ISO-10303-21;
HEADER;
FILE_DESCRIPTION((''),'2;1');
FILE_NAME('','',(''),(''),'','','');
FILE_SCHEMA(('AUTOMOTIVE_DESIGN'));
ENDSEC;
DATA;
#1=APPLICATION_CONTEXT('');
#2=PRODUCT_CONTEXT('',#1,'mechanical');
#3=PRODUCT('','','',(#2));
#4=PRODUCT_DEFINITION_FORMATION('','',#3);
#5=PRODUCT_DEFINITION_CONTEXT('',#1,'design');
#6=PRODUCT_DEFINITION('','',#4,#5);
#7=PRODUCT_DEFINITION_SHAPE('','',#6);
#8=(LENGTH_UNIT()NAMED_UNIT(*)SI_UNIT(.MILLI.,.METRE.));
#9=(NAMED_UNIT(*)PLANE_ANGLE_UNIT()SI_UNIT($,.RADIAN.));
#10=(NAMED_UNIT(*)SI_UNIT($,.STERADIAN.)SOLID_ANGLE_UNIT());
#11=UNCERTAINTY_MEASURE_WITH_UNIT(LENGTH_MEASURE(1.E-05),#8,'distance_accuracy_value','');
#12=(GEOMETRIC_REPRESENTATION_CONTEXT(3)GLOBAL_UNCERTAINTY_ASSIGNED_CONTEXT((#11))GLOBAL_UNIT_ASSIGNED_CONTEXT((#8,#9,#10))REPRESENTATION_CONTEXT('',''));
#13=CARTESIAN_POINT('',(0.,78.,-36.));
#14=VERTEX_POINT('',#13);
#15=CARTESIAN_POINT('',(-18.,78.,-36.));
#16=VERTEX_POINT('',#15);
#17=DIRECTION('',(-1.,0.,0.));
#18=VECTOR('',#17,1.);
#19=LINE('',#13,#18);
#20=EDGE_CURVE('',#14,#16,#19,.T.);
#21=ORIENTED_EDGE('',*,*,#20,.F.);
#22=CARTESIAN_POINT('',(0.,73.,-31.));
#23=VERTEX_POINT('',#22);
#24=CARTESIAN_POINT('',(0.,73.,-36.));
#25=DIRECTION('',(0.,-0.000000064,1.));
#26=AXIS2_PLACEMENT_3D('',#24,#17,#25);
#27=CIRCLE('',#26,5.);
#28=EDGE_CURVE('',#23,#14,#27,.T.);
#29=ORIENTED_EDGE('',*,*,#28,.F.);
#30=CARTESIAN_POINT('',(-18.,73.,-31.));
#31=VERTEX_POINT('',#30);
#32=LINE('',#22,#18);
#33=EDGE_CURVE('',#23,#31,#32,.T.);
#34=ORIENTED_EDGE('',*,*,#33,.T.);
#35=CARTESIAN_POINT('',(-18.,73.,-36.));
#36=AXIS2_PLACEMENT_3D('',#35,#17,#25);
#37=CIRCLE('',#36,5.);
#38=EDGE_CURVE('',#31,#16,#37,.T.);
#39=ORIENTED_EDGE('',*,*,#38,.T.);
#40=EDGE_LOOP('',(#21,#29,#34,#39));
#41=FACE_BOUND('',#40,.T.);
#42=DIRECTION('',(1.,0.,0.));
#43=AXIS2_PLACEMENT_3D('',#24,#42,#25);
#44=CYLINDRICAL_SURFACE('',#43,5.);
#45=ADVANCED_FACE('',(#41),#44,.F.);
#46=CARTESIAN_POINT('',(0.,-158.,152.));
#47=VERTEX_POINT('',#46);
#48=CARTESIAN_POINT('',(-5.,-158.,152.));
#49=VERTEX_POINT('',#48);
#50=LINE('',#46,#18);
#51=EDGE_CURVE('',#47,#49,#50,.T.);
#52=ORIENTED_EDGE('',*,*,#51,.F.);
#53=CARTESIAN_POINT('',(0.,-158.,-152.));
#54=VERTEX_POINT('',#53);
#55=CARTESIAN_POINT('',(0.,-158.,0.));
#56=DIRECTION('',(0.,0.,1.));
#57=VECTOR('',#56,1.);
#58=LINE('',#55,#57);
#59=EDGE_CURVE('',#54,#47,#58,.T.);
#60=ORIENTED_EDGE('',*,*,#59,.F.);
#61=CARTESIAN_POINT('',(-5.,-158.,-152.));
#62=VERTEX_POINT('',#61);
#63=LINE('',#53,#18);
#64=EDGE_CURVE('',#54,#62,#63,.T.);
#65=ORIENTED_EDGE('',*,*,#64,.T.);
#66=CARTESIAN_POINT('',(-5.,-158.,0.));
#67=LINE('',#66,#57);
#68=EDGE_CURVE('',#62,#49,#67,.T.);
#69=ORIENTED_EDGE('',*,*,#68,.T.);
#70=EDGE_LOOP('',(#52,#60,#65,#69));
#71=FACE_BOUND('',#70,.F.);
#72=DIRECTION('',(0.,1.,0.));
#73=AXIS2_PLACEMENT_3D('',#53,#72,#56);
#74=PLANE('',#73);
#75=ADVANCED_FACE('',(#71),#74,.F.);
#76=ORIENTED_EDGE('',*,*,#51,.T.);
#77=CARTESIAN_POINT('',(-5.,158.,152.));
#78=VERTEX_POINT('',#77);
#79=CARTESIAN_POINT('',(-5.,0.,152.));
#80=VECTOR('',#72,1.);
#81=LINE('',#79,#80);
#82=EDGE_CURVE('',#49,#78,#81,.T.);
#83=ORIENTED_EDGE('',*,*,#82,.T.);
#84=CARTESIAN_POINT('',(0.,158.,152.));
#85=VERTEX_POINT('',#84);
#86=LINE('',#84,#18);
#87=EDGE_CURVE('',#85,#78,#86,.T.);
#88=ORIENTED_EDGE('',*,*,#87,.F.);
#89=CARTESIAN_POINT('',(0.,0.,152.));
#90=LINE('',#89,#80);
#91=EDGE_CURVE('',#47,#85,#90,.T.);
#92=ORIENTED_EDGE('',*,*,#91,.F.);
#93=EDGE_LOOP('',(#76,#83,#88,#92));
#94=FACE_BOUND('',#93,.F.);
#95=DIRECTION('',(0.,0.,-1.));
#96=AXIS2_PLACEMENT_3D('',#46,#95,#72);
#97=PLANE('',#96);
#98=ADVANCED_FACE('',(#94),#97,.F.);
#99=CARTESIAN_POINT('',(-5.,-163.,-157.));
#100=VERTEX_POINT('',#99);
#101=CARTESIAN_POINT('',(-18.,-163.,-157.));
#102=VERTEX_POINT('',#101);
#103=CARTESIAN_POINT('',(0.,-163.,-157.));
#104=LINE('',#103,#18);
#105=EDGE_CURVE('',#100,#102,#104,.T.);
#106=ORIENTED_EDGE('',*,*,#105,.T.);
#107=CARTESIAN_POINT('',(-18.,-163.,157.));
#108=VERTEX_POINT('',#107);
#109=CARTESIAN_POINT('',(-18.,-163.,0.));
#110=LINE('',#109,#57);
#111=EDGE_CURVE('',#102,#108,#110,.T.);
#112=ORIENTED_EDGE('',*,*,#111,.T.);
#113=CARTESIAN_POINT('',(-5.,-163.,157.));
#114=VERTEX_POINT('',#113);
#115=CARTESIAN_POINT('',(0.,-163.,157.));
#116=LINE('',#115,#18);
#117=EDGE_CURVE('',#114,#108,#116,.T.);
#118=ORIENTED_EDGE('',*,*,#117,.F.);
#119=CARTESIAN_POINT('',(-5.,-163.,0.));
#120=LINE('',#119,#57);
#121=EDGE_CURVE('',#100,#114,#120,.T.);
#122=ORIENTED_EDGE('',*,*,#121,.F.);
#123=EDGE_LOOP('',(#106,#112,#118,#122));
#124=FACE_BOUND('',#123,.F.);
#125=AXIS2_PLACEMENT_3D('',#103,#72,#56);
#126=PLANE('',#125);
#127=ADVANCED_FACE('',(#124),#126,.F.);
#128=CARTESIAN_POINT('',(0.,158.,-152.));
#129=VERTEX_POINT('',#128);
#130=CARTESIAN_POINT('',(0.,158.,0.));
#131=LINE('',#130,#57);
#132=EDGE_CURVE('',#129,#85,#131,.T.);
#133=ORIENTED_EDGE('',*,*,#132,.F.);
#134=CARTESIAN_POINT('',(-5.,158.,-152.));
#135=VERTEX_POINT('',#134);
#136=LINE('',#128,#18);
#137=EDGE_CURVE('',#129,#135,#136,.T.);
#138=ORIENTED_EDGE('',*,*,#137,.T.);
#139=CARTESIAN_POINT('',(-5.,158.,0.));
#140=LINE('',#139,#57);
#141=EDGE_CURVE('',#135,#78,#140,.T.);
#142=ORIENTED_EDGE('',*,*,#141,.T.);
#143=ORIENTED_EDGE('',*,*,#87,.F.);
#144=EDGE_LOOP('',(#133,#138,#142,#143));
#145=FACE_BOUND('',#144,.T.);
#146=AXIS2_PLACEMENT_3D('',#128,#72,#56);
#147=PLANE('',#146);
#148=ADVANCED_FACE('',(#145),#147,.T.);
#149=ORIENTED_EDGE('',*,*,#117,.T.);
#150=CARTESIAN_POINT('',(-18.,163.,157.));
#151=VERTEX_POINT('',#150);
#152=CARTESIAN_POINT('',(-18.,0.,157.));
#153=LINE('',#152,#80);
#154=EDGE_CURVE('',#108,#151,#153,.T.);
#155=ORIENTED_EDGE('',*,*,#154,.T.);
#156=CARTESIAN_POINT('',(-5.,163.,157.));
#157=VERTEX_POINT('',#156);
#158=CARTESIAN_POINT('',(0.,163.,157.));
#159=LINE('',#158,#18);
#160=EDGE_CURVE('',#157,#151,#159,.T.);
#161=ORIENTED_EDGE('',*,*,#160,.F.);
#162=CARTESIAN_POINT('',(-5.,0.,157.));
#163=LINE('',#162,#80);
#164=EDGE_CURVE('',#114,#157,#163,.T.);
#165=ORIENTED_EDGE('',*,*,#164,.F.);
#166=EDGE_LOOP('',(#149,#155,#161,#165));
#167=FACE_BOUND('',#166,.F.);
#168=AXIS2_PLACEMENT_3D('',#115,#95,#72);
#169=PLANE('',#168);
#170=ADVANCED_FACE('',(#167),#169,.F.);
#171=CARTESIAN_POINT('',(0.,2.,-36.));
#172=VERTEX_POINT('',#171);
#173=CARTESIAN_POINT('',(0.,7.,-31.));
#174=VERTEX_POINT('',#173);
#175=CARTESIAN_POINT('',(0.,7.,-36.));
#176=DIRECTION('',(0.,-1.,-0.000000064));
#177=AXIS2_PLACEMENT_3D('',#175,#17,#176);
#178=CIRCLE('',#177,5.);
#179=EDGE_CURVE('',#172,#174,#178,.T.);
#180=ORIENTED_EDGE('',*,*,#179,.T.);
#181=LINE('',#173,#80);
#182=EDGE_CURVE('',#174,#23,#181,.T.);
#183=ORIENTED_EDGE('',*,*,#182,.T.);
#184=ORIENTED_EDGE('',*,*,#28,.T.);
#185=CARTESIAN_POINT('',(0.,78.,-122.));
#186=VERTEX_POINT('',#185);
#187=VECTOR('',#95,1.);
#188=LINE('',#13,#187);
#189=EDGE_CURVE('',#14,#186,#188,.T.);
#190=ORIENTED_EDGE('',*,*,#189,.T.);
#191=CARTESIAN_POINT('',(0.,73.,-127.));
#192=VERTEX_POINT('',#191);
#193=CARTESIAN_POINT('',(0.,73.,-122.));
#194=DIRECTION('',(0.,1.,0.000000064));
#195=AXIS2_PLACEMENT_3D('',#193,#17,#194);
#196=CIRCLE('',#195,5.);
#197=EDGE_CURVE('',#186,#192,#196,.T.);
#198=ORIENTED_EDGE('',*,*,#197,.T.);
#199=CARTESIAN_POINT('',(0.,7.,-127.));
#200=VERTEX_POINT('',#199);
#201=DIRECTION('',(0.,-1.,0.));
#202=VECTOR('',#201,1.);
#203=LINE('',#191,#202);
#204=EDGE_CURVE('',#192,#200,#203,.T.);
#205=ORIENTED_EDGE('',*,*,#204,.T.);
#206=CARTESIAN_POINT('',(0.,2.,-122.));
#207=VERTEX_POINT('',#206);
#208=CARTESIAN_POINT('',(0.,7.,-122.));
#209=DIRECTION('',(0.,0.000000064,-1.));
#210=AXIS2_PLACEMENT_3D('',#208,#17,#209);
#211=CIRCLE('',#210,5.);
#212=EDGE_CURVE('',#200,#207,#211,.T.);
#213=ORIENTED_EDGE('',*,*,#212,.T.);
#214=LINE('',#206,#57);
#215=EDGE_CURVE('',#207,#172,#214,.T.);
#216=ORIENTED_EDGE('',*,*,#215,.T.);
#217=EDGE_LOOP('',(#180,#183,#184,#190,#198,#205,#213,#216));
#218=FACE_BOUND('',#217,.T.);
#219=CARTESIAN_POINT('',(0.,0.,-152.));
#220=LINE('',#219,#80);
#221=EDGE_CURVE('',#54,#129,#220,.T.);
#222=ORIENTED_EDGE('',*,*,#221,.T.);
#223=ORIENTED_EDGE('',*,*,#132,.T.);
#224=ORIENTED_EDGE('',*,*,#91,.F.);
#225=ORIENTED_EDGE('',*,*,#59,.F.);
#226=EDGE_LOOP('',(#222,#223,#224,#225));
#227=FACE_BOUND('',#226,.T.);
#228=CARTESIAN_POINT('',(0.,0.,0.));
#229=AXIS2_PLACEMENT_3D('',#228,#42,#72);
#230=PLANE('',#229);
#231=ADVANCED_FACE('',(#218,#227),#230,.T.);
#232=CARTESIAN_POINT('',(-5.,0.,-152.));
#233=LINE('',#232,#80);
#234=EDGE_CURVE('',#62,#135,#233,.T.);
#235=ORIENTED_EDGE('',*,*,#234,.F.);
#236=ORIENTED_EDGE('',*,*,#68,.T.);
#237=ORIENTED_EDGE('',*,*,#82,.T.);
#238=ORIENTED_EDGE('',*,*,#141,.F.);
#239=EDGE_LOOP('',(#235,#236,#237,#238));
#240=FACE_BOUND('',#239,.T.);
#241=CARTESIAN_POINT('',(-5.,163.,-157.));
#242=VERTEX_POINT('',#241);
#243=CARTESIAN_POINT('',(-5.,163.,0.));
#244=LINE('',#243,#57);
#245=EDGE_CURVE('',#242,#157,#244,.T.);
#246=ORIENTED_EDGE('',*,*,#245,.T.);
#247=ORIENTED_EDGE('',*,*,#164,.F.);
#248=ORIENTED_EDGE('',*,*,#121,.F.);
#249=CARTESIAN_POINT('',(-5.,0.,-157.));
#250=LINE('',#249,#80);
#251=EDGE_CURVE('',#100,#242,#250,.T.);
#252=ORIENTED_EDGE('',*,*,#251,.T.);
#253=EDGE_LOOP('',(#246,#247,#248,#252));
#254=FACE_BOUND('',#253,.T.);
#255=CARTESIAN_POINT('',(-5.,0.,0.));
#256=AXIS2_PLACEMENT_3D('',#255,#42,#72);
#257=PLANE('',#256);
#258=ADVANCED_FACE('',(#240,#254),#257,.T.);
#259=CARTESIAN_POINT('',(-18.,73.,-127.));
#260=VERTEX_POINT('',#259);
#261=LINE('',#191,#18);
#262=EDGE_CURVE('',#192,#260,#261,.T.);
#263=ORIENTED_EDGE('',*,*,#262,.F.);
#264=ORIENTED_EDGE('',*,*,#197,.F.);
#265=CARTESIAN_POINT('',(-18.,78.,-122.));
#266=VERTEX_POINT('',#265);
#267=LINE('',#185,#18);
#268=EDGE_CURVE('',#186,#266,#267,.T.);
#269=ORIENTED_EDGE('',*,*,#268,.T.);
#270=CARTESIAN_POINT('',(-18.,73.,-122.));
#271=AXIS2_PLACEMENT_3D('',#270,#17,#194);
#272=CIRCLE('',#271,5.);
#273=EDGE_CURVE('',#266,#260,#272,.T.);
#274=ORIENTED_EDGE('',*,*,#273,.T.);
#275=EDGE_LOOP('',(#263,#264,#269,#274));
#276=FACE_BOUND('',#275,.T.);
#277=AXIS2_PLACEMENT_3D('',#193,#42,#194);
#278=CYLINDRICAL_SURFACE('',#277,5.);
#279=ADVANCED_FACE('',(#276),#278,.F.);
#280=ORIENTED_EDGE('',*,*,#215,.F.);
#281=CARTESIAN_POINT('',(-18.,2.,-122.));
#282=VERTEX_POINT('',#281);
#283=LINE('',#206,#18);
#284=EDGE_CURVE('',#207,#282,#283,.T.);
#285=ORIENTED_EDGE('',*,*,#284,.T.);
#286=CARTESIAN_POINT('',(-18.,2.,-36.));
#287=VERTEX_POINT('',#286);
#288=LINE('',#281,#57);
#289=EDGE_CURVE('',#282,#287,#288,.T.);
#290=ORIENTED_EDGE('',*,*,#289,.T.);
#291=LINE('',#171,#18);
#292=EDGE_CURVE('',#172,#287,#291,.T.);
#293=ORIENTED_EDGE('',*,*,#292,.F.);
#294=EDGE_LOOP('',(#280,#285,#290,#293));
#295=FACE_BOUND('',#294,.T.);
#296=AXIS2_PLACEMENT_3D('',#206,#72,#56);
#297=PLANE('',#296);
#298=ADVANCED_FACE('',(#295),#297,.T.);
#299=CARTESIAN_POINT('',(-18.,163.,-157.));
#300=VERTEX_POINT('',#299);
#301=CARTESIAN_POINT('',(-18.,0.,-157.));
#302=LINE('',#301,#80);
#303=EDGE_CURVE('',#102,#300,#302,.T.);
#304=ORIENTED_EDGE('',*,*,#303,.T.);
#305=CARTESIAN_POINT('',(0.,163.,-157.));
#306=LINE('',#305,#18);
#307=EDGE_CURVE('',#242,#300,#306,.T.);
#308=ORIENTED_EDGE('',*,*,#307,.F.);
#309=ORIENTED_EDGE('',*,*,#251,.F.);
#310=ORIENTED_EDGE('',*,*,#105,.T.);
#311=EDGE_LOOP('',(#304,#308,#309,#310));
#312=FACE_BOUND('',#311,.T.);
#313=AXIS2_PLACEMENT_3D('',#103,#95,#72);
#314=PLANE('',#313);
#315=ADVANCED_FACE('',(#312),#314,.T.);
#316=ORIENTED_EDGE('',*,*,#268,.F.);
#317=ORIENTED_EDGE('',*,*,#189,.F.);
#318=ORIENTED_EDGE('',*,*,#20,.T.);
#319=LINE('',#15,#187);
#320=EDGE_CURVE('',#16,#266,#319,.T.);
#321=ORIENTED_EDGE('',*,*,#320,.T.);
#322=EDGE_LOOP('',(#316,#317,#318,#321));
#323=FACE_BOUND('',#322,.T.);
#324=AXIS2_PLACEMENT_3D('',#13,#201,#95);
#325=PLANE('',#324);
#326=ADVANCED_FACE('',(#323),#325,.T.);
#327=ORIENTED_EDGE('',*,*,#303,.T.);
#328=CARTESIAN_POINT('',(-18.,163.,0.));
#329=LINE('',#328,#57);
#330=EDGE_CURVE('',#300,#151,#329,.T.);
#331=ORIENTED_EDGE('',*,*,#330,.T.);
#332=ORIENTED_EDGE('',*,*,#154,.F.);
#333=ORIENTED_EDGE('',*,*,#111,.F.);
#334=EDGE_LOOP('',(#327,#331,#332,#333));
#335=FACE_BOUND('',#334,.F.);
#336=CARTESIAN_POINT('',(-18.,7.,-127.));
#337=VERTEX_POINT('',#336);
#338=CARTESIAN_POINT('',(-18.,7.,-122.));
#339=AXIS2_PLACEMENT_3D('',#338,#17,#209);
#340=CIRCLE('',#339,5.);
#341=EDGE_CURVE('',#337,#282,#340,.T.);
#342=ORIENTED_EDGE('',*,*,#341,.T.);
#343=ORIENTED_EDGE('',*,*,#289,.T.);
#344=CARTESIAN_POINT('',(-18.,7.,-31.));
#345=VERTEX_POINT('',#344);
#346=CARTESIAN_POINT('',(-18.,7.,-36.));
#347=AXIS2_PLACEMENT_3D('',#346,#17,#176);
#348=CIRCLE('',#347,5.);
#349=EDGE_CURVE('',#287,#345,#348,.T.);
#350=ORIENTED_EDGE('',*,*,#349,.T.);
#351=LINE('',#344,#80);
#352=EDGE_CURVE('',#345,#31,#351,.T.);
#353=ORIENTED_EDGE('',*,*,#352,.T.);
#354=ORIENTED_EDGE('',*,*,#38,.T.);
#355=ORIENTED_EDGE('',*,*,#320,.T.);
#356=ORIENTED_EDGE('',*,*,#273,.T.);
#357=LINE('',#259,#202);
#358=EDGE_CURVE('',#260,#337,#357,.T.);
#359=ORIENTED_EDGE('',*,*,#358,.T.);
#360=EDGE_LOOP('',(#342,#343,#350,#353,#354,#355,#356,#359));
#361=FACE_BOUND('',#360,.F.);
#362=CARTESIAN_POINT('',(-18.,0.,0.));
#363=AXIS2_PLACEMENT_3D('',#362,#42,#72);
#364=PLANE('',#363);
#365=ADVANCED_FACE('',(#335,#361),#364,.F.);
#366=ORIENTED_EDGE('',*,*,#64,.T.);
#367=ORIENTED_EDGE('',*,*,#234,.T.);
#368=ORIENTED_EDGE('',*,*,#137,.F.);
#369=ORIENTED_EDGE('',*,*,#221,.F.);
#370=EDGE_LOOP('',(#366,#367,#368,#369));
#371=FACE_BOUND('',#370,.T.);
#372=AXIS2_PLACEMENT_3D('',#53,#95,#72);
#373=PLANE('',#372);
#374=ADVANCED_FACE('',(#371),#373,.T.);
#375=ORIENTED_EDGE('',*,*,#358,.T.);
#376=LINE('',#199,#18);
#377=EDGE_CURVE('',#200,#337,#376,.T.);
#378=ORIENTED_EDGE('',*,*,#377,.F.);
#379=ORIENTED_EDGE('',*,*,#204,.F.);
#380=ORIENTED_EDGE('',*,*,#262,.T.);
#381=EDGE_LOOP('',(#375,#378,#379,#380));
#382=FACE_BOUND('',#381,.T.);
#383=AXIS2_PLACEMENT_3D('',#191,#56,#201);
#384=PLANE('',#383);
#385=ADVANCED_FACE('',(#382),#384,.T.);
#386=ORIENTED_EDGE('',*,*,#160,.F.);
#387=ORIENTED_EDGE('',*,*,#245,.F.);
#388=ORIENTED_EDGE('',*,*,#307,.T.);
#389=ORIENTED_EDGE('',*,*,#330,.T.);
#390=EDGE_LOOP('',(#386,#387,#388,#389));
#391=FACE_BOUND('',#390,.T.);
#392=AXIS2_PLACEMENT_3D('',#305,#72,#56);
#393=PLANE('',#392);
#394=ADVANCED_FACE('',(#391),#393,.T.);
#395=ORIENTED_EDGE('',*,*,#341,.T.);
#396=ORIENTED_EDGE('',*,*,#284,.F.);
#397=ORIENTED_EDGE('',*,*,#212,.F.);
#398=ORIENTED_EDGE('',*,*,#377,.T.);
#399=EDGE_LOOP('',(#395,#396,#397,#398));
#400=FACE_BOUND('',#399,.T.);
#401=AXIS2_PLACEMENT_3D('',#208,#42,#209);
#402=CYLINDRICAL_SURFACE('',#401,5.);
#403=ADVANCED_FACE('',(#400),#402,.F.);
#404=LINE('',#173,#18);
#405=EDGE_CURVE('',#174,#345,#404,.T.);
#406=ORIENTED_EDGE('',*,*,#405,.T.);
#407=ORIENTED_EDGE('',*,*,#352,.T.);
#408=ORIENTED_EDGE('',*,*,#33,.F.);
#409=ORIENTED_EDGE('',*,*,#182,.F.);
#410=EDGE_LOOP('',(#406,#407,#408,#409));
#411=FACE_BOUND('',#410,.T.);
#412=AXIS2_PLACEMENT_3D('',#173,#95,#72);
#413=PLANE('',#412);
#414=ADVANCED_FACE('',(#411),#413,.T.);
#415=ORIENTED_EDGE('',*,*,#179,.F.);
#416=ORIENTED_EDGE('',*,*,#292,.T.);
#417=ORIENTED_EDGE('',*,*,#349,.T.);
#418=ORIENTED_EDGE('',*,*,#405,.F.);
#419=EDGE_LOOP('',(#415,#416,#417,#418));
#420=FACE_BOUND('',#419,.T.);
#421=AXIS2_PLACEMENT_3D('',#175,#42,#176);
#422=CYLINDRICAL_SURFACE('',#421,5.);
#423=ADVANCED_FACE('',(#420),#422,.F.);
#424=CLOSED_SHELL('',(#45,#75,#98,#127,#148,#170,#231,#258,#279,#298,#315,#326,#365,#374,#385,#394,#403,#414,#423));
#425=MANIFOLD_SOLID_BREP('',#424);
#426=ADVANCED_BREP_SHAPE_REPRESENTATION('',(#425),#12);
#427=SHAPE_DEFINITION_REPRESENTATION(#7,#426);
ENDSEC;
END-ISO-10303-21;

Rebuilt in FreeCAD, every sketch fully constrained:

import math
import FreeCAD as App
import Part
import Sketcher
from FreeCAD import Vector
Q = App.Units.Quantity


def add_polygon(sketch, points):
    """Adds a closed chain of lines whose ends are joined by coincident constraints."""
    first, n = sketch.GeometryCount, len(points)
    for a, b in zip(points, points[1:] + points[:1]):
        sketch.addGeometry(Part.LineSegment(App.Vector(*a, 0), App.Vector(*b, 0)), False)
    for i in range(n):
        sketch.addConstraint(Sketcher.Constraint("Coincident", first + i, 2, first + (i + 1) % n, 1))

doc = App.newDocument("Part")
body = doc.addObject("PartDesign::Body", "Body")

# Sketch on YZ plane
sketch1 = doc.addObject("Sketcher::SketchObject", "Sketch")
body.addObject(sketch1)
sketch1.AttachmentSupport = (doc.YZ_Plane, [""])
sketch1.MapMode = "FlatFace"
add_polygon(sketch1, [(-163, 157), (-163, -157), (163, -157), (163, 157)])  # lines 0-3
sketch1.addGeometry(Part.LineSegment(Vector(2, -122, 0), Vector(2, -36, 0)), False)  # 4
sketch1.addGeometry(Part.ArcOfCircle(Part.Circle(Vector(7, -36, 0), Vector(0, 0, 1), 5), math.radians(89.999996), math.radians(180.000004)), False)  # 5
sketch1.addGeometry(Part.LineSegment(Vector(7, -31, 0), Vector(73, -31, 0)), False)  # 6
sketch1.addGeometry(Part.ArcOfCircle(Part.Circle(Vector(73, -36, 0), Vector(0, 0, 1), 5), math.radians(-0.000004), math.radians(90.000004)), False)  # 7
sketch1.addGeometry(Part.LineSegment(Vector(78, -36, 0), Vector(78, -122, 0)), False)  # 8
sketch1.addGeometry(Part.ArcOfCircle(Part.Circle(Vector(73, -122, 0), Vector(0, 0, 1), 5), math.radians(-90.000004), math.radians(0.000004)), False)  # 9
sketch1.addGeometry(Part.LineSegment(Vector(73, -127, 0), Vector(7, -127, 0)), False)  # 10
sketch1.addGeometry(Part.ArcOfCircle(Part.Circle(Vector(7, -122, 0), Vector(0, 0, 1), 5), math.radians(179.999996), math.radians(270.000004)), False)  # 11
sketch1.addConstraint(Sketcher.Constraint("Tangent", 4, 2, 5, 2))
sketch1.addConstraint(Sketcher.Constraint("Tangent", 5, 1, 6, 1))
sketch1.addConstraint(Sketcher.Constraint("Tangent", 6, 2, 7, 2))
sketch1.addConstraint(Sketcher.Constraint("Tangent", 7, 1, 8, 1))
sketch1.addConstraint(Sketcher.Constraint("Tangent", 8, 2, 9, 2))
sketch1.addConstraint(Sketcher.Constraint("Tangent", 9, 1, 10, 1))
sketch1.addConstraint(Sketcher.Constraint("Tangent", 10, 2, 11, 2))
sketch1.addConstraint(Sketcher.Constraint("Tangent", 11, 1, 4, 1))
sketch1.addConstraint(Sketcher.Constraint("Vertical", 0))
sketch1.addConstraint(Sketcher.Constraint("Horizontal", 1))
sketch1.addConstraint(Sketcher.Constraint("Vertical", 2))
sketch1.addConstraint(Sketcher.Constraint("Horizontal", 3))
sketch1.addConstraint(Sketcher.Constraint("Vertical", 4))
sketch1.addConstraint(Sketcher.Constraint("Horizontal", 6))
sketch1.addConstraint(Sketcher.Constraint("Vertical", 8))
sketch1.addConstraint(Sketcher.Constraint("Horizontal", 10))
sketch1.addConstraint(Sketcher.Constraint("Equal", 5, 7))
sketch1.addConstraint(Sketcher.Constraint("Equal", 7, 9))
sketch1.addConstraint(Sketcher.Constraint("Equal", 9, 11))
sketch1.addConstraint(Sketcher.Constraint("Symmetric", 0, 2, 2, 2, -1, 1))
sketch1.addConstraint(Sketcher.Constraint("Radius", 5, Q("5 mm")))
sketch1.addConstraint(Sketcher.Constraint("DistanceX", 1, 1, 1, 2, Q("326 mm")))
sketch1.addConstraint(Sketcher.Constraint("DistanceX", 6, 1, 6, 2, Q("66 mm")))
sketch1.addConstraint(Sketcher.Constraint("DistanceY", 0, 2, 0, 1, Q("314 mm")))
sketch1.addConstraint(Sketcher.Constraint("DistanceY", 4, 1, 4, 2, Q("86 mm")))
sketch1.addConstraint(Sketcher.Constraint("DistanceX", -1, 1, 5, 3, Q("7 mm")))
sketch1.addConstraint(Sketcher.Constraint("DistanceY", 5, 3, -1, 1, Q("36 mm")))
pad1 = doc.addObject("PartDesign::Pad", "Pad")
body.addObject(pad1)
pad1.Profile = sketch1
pad1.Length = 18
pad1.Reversed = True

# Sketch on YZ plane
sketch2 = doc.addObject("Sketcher::SketchObject", "Sketch001")
body.addObject(sketch2)
sketch2.AttachmentSupport = (doc.YZ_Plane, [""])
sketch2.MapMode = "FlatFace"
add_polygon(sketch2, [(-163, 157), (-163, -157), (163, -157), (163, 157)])  # lines 0-3
add_polygon(sketch2, [(158, -152), (-158, -152), (-158, 152), (158, 152)])  # lines 4-7
sketch2.addConstraint(Sketcher.Constraint("Vertical", 0))
sketch2.addConstraint(Sketcher.Constraint("Horizontal", 1))
sketch2.addConstraint(Sketcher.Constraint("Vertical", 2))
sketch2.addConstraint(Sketcher.Constraint("Horizontal", 3))
sketch2.addConstraint(Sketcher.Constraint("Horizontal", 4))
sketch2.addConstraint(Sketcher.Constraint("Vertical", 5))
sketch2.addConstraint(Sketcher.Constraint("Horizontal", 6))
sketch2.addConstraint(Sketcher.Constraint("Vertical", 7))
sketch2.addConstraint(Sketcher.Constraint("Symmetric", 0, 2, 2, 2, -1, 1))
sketch2.addConstraint(Sketcher.Constraint("Symmetric", 4, 2, 6, 2, -1, 1))
sketch2.addConstraint(Sketcher.Constraint("DistanceX", 1, 1, 1, 2, Q("326 mm")))
sketch2.addConstraint(Sketcher.Constraint("DistanceX", 4, 2, 4, 1, Q("316 mm")))
sketch2.addConstraint(Sketcher.Constraint("DistanceY", 0, 2, 0, 1, Q("314 mm")))
sketch2.addConstraint(Sketcher.Constraint("DistanceY", 5, 1, 5, 2, Q("304 mm")))
pocket1 = doc.addObject("PartDesign::Pocket", "Pocket")
body.addObject(pocket1)
pocket1.Profile = sketch2
pocket1.Length = 5

doc.recompute()
